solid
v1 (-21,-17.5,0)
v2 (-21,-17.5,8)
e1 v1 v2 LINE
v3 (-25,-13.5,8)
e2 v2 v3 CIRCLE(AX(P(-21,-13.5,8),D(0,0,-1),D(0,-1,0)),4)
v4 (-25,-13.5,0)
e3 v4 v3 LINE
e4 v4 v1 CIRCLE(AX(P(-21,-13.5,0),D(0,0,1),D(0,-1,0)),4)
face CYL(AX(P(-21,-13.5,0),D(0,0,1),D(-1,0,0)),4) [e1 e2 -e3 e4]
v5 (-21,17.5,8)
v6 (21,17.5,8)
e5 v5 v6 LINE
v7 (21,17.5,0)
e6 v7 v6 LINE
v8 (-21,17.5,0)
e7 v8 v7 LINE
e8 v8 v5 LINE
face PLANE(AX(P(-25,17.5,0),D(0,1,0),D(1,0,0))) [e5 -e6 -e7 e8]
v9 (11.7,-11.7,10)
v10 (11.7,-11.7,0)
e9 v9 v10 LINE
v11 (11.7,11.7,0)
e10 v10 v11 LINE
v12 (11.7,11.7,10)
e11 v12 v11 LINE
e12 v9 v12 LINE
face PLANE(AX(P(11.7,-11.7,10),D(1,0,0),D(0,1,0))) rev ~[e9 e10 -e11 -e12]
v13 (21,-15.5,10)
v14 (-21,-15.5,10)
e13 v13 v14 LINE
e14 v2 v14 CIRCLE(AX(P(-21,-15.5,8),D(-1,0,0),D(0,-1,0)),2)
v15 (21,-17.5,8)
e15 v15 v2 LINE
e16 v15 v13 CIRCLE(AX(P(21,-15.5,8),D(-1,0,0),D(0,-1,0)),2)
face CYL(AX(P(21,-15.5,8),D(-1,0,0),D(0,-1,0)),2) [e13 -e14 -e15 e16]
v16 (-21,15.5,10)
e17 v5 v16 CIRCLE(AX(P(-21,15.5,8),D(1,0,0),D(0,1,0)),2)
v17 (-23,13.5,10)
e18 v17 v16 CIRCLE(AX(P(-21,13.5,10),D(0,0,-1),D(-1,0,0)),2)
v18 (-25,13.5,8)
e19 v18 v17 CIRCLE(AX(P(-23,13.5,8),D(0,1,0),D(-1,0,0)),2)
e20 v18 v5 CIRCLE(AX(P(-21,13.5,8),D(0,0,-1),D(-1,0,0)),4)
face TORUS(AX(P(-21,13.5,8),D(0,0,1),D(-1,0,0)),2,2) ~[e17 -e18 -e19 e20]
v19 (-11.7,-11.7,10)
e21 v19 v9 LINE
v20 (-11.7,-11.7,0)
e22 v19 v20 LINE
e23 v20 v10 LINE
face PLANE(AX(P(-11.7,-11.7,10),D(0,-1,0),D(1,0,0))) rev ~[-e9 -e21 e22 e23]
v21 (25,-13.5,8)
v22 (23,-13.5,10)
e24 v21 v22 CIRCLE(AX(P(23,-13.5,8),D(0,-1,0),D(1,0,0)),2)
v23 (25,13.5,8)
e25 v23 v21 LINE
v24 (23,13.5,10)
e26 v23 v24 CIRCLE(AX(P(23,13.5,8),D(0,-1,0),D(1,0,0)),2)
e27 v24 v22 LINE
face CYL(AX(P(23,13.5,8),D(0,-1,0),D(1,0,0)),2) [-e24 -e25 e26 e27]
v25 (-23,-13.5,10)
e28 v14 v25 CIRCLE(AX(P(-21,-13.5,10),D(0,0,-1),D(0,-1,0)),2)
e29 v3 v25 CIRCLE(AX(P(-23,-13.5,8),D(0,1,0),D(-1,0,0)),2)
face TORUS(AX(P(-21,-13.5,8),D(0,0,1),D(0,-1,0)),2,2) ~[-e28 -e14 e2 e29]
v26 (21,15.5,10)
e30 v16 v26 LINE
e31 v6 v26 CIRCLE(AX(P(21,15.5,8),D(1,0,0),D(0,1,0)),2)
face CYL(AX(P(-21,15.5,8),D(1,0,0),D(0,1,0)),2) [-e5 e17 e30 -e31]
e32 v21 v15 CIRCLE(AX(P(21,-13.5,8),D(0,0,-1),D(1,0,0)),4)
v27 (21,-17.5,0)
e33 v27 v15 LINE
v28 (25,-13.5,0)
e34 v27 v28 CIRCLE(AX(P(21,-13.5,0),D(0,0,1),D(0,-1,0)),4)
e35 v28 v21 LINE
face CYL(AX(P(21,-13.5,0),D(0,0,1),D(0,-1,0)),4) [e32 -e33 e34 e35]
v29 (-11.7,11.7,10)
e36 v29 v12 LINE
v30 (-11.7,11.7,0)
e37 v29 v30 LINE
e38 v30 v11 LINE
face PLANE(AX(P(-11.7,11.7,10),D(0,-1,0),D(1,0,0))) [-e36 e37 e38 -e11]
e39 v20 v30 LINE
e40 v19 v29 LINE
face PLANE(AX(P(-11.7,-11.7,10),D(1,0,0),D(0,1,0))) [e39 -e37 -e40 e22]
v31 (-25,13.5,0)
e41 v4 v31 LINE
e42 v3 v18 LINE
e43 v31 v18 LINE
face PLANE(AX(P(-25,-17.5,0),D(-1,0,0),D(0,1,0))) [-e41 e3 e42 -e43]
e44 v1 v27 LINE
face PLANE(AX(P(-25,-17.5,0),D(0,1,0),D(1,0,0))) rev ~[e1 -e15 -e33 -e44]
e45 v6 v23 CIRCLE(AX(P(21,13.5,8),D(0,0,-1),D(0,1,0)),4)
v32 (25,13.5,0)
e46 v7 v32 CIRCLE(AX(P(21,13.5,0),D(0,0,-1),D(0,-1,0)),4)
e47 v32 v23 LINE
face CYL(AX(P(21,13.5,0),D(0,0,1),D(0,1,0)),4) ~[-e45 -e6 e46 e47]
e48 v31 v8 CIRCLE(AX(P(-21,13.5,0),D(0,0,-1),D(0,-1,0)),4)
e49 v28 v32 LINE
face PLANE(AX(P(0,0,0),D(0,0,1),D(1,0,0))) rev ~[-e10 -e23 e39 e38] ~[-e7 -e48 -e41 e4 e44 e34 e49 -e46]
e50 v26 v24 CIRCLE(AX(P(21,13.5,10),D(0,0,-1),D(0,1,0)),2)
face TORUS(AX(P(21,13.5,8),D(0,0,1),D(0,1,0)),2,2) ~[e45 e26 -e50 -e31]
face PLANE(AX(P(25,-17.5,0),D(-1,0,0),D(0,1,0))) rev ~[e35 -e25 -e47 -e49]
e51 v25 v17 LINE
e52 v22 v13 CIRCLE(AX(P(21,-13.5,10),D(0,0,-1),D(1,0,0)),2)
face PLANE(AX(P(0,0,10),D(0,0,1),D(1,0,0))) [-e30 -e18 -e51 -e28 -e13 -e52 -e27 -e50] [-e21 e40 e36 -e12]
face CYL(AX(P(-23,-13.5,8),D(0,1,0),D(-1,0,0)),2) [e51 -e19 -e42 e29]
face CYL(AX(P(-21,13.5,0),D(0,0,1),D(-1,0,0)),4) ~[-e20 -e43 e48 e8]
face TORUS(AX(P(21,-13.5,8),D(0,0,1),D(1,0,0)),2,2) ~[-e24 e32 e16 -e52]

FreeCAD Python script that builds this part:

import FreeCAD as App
import Part
import Sketcher

V = App.Vector
Q = App.Units.Quantity


def edges_at(feature, points):
    """Names of the edges that pass closest to the given points."""
    edges = feature.Shape.Edges
    near = lambda p: min(range(len(edges)), key=lambda i: edges[i].distToShape(Part.Vertex(*p))[0])
    return sorted({f"Edge{near(p) + 1}" for p in points})


def add_polygon(sketch, points):
    """Adds a closed chain of lines whose ends are joined by coincident constraints."""
    first, n = sketch.GeometryCount, len(points)
    for a, b in zip(points, points[1:] + points[:1]):
        sketch.addGeometry(Part.LineSegment(App.Vector(*a, 0), App.Vector(*b, 0)), False)
    for i in range(n):
        sketch.addConstraint(Sketcher.Constraint("Coincident", first + i, 2, first + (i + 1) % n, 1))

doc = App.newDocument("Part")
body = doc.addObject("PartDesign::Body", "Body")

# Sketch on XY plane
sketch1 = doc.addObject("Sketcher::SketchObject", "Sketch")
body.addObject(sketch1)
sketch1.AttachmentSupport = (doc.XY_Plane, [""])
sketch1.MapMode = "FlatFace"
add_polygon(sketch1, [(-25, 18), (-25, -18), (25, -18), (25, 18)])  # lines 0-3
sketch1.addConstraint([
    Sketcher.Constraint("Vertical", 0),
    Sketcher.Constraint("Horizontal", 1),
    Sketcher.Constraint("Vertical", 2),
    Sketcher.Constraint("Horizontal", 3),
    Sketcher.Constraint("Symmetric", 0, 2, 2, 2, -1, 1),
    Sketcher.Constraint("DistanceX", 1, 1, 1, 2, Q("50 mm")),
    Sketcher.Constraint("DistanceY", 0, 2, 0, 1, Q("35 mm")),
])
pad1 = doc.addObject("PartDesign::Pad", "Pad")
body.addObject(pad1)
pad1.Profile = sketch1
pad1.Length = 10

# Sketch on XY plane
sketch2 = doc.addObject("Sketcher::SketchObject", "Sketch001")
body.addObject(sketch2)
sketch2.AttachmentSupport = (doc.XY_Plane, [""])
sketch2.MapMode = "FlatFace"
sketch2.AttachmentOffset = App.Placement(V(0, 0, 10), App.Rotation())
add_polygon(sketch2, [(-12, 12), (-12, -12), (12, -12), (12, 12)])  # lines 0-3
sketch2.addConstraint([
    Sketcher.Constraint("Vertical", 0),
    Sketcher.Constraint("Horizontal", 1),
    Sketcher.Constraint("Vertical", 2),
    Sketcher.Constraint("Horizontal", 3),
    Sketcher.Constraint("Symmetric", 0, 2, 2, 2, -1, 1),
    Sketcher.Constraint("Equal", 3, 0),
    Sketcher.Constraint("DistanceX", 1, 1, 1, 2, Q("23.4 mm")),
])
pocket1 = doc.addObject("PartDesign::Pocket", "Pocket")
body.addObject(pocket1)
pocket1.Profile = sketch2
pocket1.Type = "ThroughAll"
doc.recompute()

fillet = doc.addObject("PartDesign::Fillet", "Fillet")
body.addObject(fillet)
fillet.Base = (pocket1, edges_at(pocket1, [
    (-25, 17.5, 5),
    (-25, -17.5, 5),
    (25, -17.5, 5),
    (25, 17.5, 5),
]))
fillet.Radius = 4
doc.recompute()

fillet2 = doc.addObject("PartDesign::Fillet", "Fillet001")
body.addObject(fillet2)
fillet2.Base = (fillet, edges_at(fillet, [
    (-25, 0, 10),
    (-23.828, 16.328, 10),
    (0, 17.5, 10),
    (23.828, 16.328, 10),
    (25, 0, 10),
    (23.828, -16.328, 10),
    (0, -17.5, 10),
    (-23.828, -16.328, 10),
]))
fillet2.Radius = 2

doc.recompute()
